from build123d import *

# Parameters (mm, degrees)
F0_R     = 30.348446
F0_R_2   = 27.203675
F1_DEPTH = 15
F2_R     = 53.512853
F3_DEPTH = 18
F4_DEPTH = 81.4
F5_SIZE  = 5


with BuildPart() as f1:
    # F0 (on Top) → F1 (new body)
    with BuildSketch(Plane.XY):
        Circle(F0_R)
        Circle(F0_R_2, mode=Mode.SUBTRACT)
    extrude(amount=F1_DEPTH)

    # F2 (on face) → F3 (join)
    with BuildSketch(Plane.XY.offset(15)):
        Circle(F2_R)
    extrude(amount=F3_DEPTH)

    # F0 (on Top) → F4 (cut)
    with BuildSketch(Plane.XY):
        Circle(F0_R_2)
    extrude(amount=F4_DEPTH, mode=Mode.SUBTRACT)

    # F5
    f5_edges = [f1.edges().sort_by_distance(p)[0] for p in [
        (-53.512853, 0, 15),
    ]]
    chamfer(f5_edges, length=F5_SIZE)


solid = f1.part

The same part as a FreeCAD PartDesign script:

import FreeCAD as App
import Part
import Sketcher


def edges_at(feature, points):
    """Names of the edges that pass closest to the given points."""
    edges = feature.Shape.Edges
    near = lambda p: min(range(len(edges)), key=lambda i: edges[i].distToShape(Part.Vertex(*p))[0])
    return sorted({f"Edge{near(p) + 1}" for p in points})

doc = App.newDocument("Part")
params = doc.addObject("Spreadsheet::Sheet", "Params")
for row, (alias, value) in enumerate([
    ("pad1_length", "15 mm"),
    ("pad2_length", "18 mm"),
    ("pocket1_length", "81.4 mm"),
    ("chamfer_size", "5 mm"),
], start=1):
    params.set(f"A{row}", alias)
    params.set(f"B{row}", "=" + value)
    params.setAlias(f"B{row}", alias)

body = doc.addObject("PartDesign::Body", "Body")

# Sketch on XY plane
sketch1 = body.newObject("Sketcher::SketchObject", "Sketch")
sketch1.AttachmentSupport = (doc.getObject("XY_Plane"), [""])
sketch1.MapMode = "FlatFace"
sketch1.addGeometry([
    Part.Circle(App.Vector(0, 0, 0), App.Vector(0, 0, 1), 30.348446),
    Part.Circle(App.Vector(0, 0, 0), App.Vector(0, 0, 1), 27.203675),
], False)
sketch1.addConstraint([
    Sketcher.Constraint("Coincident", 0, 3, -1, 1),
    Sketcher.Constraint("Coincident", 1, 3, -1, 1),
    Sketcher.Constraint("Diameter", 0, 60.696892),
    Sketcher.Constraint("Diameter", 1, 54.40735),
])
pad1 = body.newObject("PartDesign::Pad", "Pad")
pad1.Profile = sketch1
pad1.setExpression("Length", "Params.pad1_length")

# Sketch on XY plane
sketch2 = body.newObject("Sketcher::SketchObject", "Sketch001")
sketch2.AttachmentSupport = (doc.getObject("XY_Plane"), [""])
sketch2.MapMode = "FlatFace"
sketch2.AttachmentOffset = App.Placement(App.Vector(0, 0, 15), App.Rotation())
sketch2.addGeometry(Part.Circle(App.Vector(0, 0, 0), App.Vector(0, 0, 1), 53.512853), False)
sketch2.addConstraint([
    Sketcher.Constraint("Coincident", 0, 3, -1, 1),
    Sketcher.Constraint("Diameter", 0, 107.025706),
])
pad2 = body.newObject("PartDesign::Pad", "Pad001")
pad2.Profile = sketch2
pad2.setExpression("Length", "Params.pad2_length")

# Sketch on XY plane
sketch3 = body.newObject("Sketcher::SketchObject", "Sketch002")
sketch3.AttachmentSupport = (doc.getObject("XY_Plane"), [""])
sketch3.MapMode = "FlatFace"
sketch3.addGeometry(Part.Circle(App.Vector(0, 0, 0), App.Vector(0, 0, 1), 27.203675), False)
sketch3.addConstraint([
    Sketcher.Constraint("Coincident", 0, 3, -1, 1),
    Sketcher.Constraint("Diameter", 0, 54.40735),
])
pocket1 = body.newObject("PartDesign::Pocket", "Pocket")
pocket1.Profile = sketch3
pocket1.setExpression("Length", "Params.pocket1_length")
pocket1.Reversed = True
doc.recompute()

chamfer = body.newObject("PartDesign::Chamfer", "Chamfer")
chamfer.Base = (pocket1, edges_at(pocket1, [(-53.513, 0, 15)]))
chamfer.setExpression("Size", "Params.chamfer_size")

doc.recompute()
